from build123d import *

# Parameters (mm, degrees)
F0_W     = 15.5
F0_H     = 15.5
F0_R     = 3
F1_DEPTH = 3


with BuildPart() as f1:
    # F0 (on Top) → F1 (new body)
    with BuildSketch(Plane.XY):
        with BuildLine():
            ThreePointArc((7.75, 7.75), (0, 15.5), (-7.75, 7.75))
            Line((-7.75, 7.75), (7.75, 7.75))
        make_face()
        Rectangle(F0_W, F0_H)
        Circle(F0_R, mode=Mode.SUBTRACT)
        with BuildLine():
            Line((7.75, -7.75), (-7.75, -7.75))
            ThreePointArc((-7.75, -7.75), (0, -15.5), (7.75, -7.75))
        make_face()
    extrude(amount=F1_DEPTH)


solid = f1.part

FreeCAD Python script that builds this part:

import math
import FreeCAD as App
import Part
import Sketcher
from FreeCAD import Vector
Q = App.Units.Quantity

doc = App.newDocument("Part")
body = doc.addObject("PartDesign::Body", "Body")

# Sketch on XY plane
sketch1 = body.newObject("Sketcher::SketchObject", "Sketch")
sketch1.AttachmentSupport = (doc.getObject("XY_Plane"), [""])
sketch1.MapMode = "FlatFace"
sketch1.addGeometry([
    Part.ArcOfCircle(Part.Circle(Vector(0, 7.8, 0), Vector(0, 0, 1), 7.8), math.radians(0), math.radians(180)),  # 0
    Part.LineSegment(Vector(-7.8, 7.8, 0), Vector(-7.8, -7.8, 0)),  # 1
    Part.ArcOfCircle(Part.Circle(Vector(0, -7.8, 0), Vector(0, 0, 1), 7.8), math.radians(180), math.radians(360)),  # 2
    Part.LineSegment(Vector(7.8, -7.8, 0), Vector(7.8, 7.8, 0)),  # 3
    Part.Circle(Vector(0, 0, 0), Vector(0, 0, 1), 3),  # 4
], False)
sketch1.addConstraint([
    Sketcher.Constraint("Tangent", 0, 2, 1, 1),
    Sketcher.Constraint("Tangent", 1, 2, 2, 1),
    Sketcher.Constraint("Tangent", 2, 2, 3, 1),
    Sketcher.Constraint("Tangent", 3, 2, 0, 1),
    Sketcher.Constraint("Vertical", 1),
    Sketcher.Constraint("Vertical", 3),
    Sketcher.Constraint("Coincident", 4, 3, -1, 1),
    Sketcher.Constraint("Symmetric", 0, 3, 2, 3, -1, 1),
    Sketcher.Constraint("Diameter", 4, Q("6 mm")),
    Sketcher.Constraint("Radius", 0, Q("7.75 mm")),
    Sketcher.Constraint("DistanceY", 1, 2, 1, 1, Q("15.5 mm")),
])
pad1 = body.newObject("PartDesign::Pad", "Pad")
pad1.Profile = sketch1
pad1.Length = 3

doc.recompute()
